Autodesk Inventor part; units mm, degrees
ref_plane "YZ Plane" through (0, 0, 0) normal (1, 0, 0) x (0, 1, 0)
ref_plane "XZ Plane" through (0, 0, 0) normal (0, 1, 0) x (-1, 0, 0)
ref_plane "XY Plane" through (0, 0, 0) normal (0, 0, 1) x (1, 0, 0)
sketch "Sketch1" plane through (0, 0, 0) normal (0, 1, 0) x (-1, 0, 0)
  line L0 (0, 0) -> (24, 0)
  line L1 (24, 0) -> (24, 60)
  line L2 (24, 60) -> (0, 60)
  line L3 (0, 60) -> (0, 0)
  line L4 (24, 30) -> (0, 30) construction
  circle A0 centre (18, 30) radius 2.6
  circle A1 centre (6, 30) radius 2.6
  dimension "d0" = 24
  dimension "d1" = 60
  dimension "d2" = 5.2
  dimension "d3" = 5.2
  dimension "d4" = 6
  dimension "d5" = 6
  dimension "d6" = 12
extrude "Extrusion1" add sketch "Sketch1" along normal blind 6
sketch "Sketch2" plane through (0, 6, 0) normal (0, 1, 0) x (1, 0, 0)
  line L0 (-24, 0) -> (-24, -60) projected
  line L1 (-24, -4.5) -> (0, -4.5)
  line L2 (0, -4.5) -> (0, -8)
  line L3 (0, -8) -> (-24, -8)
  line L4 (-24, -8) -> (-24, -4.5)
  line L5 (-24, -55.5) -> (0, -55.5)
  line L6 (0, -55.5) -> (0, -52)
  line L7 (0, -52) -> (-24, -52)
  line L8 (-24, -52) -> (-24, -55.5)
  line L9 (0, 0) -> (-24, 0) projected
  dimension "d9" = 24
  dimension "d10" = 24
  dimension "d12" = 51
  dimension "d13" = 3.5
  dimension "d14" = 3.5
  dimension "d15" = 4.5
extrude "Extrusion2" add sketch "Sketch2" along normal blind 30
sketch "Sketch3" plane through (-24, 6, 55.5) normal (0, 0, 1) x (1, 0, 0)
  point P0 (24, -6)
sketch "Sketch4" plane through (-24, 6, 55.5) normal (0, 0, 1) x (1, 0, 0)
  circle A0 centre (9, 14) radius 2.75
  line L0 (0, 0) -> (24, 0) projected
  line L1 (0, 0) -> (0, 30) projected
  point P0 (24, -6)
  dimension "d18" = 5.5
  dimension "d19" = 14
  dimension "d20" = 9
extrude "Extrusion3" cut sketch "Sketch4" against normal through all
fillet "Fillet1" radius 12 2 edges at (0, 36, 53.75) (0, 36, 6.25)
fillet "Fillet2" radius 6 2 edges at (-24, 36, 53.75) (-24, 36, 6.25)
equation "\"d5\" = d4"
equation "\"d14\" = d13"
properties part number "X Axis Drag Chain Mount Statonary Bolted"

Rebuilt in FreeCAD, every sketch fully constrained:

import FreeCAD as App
import Part
import Sketcher
Q = App.Units.Quantity


def edges_at(feature, points):
    """Names of the edges that pass closest to the given points."""
    edges = feature.Shape.Edges
    near = lambda p: min(range(len(edges)), key=lambda i: edges[i].distToShape(Part.Vertex(*p))[0])
    return sorted({f"Edge{near(p) + 1}" for p in points})


def add_polygon(sketch, points):
    """Adds a closed chain of lines whose ends are joined by coincident constraints."""
    first, n = sketch.GeometryCount, len(points)
    for a, b in zip(points, points[1:] + points[:1]):
        sketch.addGeometry(Part.LineSegment(App.Vector(*a, 0), App.Vector(*b, 0)), False)
    for i in range(n):
        sketch.addConstraint(Sketcher.Constraint("Coincident", first + i, 2, first + (i + 1) % n, 1))

doc = App.newDocument("Part")
body = doc.addObject("PartDesign::Body", "Body")

# Sketch on XZ plane
sketch1 = body.newObject("Sketcher::SketchObject", "Sketch")
sketch1.AttachmentSupport = (doc.getObject("XZ_Plane"), [""])
sketch1.MapMode = "FlatFace"
add_polygon(sketch1, [(0, 60), (0, 0), (-24, 0), (-24, 60)])  # lines 0-3
sketch1.addGeometry(Part.Circle(App.Vector(-6, 30, 0), App.Vector(0, 0, 1), 2.6), False)  # 4
sketch1.addGeometry(Part.Circle(App.Vector(-18, 30, 0), App.Vector(0, 0, 1), 2.6), False)  # 5
sketch1.addConstraint([
    Sketcher.Constraint("Vertical", 0),
    Sketcher.Constraint("Horizontal", 1),
    Sketcher.Constraint("Vertical", 2),
    Sketcher.Constraint("Horizontal", 3),
    Sketcher.Constraint("Coincident", 0, 2, -1, 1),
    Sketcher.Constraint("Equal", 4, 5),
    Sketcher.Constraint("Horizontal", 4, 3, 5, 3),
    Sketcher.Constraint("Diameter", 4, Q("5.2 mm")),
    Sketcher.Constraint("DistanceX", 1, 2, 1, 1, Q("24 mm")),
    Sketcher.Constraint("DistanceY", 0, 2, 0, 1, Q("60 mm")),
    Sketcher.Constraint("DistanceX", 4, 3, -1, 1, Q("6 mm")),
    Sketcher.Constraint("DistanceX", 5, 3, 4, 3, Q("12 mm")),
    Sketcher.Constraint("DistanceY", -1, 1, 4, 3, Q("30 mm")),
])
pad1 = body.newObject("PartDesign::Pad", "Pad")
pad1.Profile = sketch1
pad1.Length = 6
pad1.Reversed = True

# Sketch on XZ plane
sketch2 = body.newObject("Sketcher::SketchObject", "Sketch001")
sketch2.AttachmentSupport = (doc.getObject("XZ_Plane"), [""])
sketch2.MapMode = "FlatFace"
sketch2.AttachmentOffset = App.Placement(App.Vector(0, 0, -6), App.Rotation())
add_polygon(sketch2, [(0, 4.5), (-24, 4.5), (-24, 8), (0, 8)])  # lines 0-3
add_polygon(sketch2, [(0, 52), (-24, 52), (-24, 55.5), (0, 55.5)])  # lines 4-7
sketch2.addConstraint([
    Sketcher.Constraint("Horizontal", 0),
    Sketcher.Constraint("Vertical", 1),
    Sketcher.Constraint("Horizontal", 2),
    Sketcher.Constraint("Vertical", 3),
    Sketcher.Constraint("Horizontal", 4),
    Sketcher.Constraint("Vertical", 5),
    Sketcher.Constraint("Horizontal", 6),
    Sketcher.Constraint("Vertical", 7),
    Sketcher.Constraint("PointOnObject", 2, 2, -2),
    Sketcher.Constraint("PointOnObject", 6, 2, -2),
    Sketcher.Constraint("Vertical", 1, 2, 4, 2),
    Sketcher.Constraint("Equal", 3, 5),
    Sketcher.Constraint("DistanceX", 0, 2, 0, 1, Q("24 mm")),
    Sketcher.Constraint("DistanceY", 1, 1, 1, 2, Q("3.5 mm")),
    Sketcher.Constraint("DistanceY", 0, 2, 5, 2, Q("51 mm")),
    Sketcher.Constraint("DistanceY", -1, 1, 0, 2, Q("4.5 mm")),
])
pad2 = body.newObject("PartDesign::Pad", "Pad001")
pad2.Profile = sketch2
pad2.Length = 30
pad2.Reversed = True

# Sketch on XY plane
sketch3 = body.newObject("Sketcher::SketchObject", "Sketch002")
sketch3.AttachmentSupport = (doc.getObject("XY_Plane"), [""])
sketch3.MapMode = "FlatFace"
sketch3.AttachmentOffset = App.Placement(App.Vector(0, 0, 55.5), App.Rotation())
sketch3.addGeometry(Part.Circle(App.Vector(-15, 20, 0), App.Vector(0, 0, 1), 2.8), False)
sketch3.addConstraint([
    Sketcher.Constraint("Diameter", 0, Q("5.5 mm")),
    Sketcher.Constraint("DistanceX", 0, 3, -1, 1, Q("15 mm")),
    Sketcher.Constraint("DistanceY", -1, 1, 0, 3, Q("20 mm")),
])
pocket1 = body.newObject("PartDesign::Pocket", "Pocket")
pocket1.Profile = sketch3
pocket1.Type = "ThroughAll"
doc.recompute()

fillet = body.newObject("PartDesign::Fillet", "Fillet")
fillet.Base = (pocket1, edges_at(pocket1, [(0, 36, 53.75), (0, 36, 6.25)]))
fillet.Radius = 12
doc.recompute()

fillet2 = body.newObject("PartDesign::Fillet", "Fillet001")
fillet2.Base = (fillet, edges_at(fillet, [(-24, 36, 53.75), (-24, 36, 6.25)]))
fillet2.Radius = 6

doc.recompute()
